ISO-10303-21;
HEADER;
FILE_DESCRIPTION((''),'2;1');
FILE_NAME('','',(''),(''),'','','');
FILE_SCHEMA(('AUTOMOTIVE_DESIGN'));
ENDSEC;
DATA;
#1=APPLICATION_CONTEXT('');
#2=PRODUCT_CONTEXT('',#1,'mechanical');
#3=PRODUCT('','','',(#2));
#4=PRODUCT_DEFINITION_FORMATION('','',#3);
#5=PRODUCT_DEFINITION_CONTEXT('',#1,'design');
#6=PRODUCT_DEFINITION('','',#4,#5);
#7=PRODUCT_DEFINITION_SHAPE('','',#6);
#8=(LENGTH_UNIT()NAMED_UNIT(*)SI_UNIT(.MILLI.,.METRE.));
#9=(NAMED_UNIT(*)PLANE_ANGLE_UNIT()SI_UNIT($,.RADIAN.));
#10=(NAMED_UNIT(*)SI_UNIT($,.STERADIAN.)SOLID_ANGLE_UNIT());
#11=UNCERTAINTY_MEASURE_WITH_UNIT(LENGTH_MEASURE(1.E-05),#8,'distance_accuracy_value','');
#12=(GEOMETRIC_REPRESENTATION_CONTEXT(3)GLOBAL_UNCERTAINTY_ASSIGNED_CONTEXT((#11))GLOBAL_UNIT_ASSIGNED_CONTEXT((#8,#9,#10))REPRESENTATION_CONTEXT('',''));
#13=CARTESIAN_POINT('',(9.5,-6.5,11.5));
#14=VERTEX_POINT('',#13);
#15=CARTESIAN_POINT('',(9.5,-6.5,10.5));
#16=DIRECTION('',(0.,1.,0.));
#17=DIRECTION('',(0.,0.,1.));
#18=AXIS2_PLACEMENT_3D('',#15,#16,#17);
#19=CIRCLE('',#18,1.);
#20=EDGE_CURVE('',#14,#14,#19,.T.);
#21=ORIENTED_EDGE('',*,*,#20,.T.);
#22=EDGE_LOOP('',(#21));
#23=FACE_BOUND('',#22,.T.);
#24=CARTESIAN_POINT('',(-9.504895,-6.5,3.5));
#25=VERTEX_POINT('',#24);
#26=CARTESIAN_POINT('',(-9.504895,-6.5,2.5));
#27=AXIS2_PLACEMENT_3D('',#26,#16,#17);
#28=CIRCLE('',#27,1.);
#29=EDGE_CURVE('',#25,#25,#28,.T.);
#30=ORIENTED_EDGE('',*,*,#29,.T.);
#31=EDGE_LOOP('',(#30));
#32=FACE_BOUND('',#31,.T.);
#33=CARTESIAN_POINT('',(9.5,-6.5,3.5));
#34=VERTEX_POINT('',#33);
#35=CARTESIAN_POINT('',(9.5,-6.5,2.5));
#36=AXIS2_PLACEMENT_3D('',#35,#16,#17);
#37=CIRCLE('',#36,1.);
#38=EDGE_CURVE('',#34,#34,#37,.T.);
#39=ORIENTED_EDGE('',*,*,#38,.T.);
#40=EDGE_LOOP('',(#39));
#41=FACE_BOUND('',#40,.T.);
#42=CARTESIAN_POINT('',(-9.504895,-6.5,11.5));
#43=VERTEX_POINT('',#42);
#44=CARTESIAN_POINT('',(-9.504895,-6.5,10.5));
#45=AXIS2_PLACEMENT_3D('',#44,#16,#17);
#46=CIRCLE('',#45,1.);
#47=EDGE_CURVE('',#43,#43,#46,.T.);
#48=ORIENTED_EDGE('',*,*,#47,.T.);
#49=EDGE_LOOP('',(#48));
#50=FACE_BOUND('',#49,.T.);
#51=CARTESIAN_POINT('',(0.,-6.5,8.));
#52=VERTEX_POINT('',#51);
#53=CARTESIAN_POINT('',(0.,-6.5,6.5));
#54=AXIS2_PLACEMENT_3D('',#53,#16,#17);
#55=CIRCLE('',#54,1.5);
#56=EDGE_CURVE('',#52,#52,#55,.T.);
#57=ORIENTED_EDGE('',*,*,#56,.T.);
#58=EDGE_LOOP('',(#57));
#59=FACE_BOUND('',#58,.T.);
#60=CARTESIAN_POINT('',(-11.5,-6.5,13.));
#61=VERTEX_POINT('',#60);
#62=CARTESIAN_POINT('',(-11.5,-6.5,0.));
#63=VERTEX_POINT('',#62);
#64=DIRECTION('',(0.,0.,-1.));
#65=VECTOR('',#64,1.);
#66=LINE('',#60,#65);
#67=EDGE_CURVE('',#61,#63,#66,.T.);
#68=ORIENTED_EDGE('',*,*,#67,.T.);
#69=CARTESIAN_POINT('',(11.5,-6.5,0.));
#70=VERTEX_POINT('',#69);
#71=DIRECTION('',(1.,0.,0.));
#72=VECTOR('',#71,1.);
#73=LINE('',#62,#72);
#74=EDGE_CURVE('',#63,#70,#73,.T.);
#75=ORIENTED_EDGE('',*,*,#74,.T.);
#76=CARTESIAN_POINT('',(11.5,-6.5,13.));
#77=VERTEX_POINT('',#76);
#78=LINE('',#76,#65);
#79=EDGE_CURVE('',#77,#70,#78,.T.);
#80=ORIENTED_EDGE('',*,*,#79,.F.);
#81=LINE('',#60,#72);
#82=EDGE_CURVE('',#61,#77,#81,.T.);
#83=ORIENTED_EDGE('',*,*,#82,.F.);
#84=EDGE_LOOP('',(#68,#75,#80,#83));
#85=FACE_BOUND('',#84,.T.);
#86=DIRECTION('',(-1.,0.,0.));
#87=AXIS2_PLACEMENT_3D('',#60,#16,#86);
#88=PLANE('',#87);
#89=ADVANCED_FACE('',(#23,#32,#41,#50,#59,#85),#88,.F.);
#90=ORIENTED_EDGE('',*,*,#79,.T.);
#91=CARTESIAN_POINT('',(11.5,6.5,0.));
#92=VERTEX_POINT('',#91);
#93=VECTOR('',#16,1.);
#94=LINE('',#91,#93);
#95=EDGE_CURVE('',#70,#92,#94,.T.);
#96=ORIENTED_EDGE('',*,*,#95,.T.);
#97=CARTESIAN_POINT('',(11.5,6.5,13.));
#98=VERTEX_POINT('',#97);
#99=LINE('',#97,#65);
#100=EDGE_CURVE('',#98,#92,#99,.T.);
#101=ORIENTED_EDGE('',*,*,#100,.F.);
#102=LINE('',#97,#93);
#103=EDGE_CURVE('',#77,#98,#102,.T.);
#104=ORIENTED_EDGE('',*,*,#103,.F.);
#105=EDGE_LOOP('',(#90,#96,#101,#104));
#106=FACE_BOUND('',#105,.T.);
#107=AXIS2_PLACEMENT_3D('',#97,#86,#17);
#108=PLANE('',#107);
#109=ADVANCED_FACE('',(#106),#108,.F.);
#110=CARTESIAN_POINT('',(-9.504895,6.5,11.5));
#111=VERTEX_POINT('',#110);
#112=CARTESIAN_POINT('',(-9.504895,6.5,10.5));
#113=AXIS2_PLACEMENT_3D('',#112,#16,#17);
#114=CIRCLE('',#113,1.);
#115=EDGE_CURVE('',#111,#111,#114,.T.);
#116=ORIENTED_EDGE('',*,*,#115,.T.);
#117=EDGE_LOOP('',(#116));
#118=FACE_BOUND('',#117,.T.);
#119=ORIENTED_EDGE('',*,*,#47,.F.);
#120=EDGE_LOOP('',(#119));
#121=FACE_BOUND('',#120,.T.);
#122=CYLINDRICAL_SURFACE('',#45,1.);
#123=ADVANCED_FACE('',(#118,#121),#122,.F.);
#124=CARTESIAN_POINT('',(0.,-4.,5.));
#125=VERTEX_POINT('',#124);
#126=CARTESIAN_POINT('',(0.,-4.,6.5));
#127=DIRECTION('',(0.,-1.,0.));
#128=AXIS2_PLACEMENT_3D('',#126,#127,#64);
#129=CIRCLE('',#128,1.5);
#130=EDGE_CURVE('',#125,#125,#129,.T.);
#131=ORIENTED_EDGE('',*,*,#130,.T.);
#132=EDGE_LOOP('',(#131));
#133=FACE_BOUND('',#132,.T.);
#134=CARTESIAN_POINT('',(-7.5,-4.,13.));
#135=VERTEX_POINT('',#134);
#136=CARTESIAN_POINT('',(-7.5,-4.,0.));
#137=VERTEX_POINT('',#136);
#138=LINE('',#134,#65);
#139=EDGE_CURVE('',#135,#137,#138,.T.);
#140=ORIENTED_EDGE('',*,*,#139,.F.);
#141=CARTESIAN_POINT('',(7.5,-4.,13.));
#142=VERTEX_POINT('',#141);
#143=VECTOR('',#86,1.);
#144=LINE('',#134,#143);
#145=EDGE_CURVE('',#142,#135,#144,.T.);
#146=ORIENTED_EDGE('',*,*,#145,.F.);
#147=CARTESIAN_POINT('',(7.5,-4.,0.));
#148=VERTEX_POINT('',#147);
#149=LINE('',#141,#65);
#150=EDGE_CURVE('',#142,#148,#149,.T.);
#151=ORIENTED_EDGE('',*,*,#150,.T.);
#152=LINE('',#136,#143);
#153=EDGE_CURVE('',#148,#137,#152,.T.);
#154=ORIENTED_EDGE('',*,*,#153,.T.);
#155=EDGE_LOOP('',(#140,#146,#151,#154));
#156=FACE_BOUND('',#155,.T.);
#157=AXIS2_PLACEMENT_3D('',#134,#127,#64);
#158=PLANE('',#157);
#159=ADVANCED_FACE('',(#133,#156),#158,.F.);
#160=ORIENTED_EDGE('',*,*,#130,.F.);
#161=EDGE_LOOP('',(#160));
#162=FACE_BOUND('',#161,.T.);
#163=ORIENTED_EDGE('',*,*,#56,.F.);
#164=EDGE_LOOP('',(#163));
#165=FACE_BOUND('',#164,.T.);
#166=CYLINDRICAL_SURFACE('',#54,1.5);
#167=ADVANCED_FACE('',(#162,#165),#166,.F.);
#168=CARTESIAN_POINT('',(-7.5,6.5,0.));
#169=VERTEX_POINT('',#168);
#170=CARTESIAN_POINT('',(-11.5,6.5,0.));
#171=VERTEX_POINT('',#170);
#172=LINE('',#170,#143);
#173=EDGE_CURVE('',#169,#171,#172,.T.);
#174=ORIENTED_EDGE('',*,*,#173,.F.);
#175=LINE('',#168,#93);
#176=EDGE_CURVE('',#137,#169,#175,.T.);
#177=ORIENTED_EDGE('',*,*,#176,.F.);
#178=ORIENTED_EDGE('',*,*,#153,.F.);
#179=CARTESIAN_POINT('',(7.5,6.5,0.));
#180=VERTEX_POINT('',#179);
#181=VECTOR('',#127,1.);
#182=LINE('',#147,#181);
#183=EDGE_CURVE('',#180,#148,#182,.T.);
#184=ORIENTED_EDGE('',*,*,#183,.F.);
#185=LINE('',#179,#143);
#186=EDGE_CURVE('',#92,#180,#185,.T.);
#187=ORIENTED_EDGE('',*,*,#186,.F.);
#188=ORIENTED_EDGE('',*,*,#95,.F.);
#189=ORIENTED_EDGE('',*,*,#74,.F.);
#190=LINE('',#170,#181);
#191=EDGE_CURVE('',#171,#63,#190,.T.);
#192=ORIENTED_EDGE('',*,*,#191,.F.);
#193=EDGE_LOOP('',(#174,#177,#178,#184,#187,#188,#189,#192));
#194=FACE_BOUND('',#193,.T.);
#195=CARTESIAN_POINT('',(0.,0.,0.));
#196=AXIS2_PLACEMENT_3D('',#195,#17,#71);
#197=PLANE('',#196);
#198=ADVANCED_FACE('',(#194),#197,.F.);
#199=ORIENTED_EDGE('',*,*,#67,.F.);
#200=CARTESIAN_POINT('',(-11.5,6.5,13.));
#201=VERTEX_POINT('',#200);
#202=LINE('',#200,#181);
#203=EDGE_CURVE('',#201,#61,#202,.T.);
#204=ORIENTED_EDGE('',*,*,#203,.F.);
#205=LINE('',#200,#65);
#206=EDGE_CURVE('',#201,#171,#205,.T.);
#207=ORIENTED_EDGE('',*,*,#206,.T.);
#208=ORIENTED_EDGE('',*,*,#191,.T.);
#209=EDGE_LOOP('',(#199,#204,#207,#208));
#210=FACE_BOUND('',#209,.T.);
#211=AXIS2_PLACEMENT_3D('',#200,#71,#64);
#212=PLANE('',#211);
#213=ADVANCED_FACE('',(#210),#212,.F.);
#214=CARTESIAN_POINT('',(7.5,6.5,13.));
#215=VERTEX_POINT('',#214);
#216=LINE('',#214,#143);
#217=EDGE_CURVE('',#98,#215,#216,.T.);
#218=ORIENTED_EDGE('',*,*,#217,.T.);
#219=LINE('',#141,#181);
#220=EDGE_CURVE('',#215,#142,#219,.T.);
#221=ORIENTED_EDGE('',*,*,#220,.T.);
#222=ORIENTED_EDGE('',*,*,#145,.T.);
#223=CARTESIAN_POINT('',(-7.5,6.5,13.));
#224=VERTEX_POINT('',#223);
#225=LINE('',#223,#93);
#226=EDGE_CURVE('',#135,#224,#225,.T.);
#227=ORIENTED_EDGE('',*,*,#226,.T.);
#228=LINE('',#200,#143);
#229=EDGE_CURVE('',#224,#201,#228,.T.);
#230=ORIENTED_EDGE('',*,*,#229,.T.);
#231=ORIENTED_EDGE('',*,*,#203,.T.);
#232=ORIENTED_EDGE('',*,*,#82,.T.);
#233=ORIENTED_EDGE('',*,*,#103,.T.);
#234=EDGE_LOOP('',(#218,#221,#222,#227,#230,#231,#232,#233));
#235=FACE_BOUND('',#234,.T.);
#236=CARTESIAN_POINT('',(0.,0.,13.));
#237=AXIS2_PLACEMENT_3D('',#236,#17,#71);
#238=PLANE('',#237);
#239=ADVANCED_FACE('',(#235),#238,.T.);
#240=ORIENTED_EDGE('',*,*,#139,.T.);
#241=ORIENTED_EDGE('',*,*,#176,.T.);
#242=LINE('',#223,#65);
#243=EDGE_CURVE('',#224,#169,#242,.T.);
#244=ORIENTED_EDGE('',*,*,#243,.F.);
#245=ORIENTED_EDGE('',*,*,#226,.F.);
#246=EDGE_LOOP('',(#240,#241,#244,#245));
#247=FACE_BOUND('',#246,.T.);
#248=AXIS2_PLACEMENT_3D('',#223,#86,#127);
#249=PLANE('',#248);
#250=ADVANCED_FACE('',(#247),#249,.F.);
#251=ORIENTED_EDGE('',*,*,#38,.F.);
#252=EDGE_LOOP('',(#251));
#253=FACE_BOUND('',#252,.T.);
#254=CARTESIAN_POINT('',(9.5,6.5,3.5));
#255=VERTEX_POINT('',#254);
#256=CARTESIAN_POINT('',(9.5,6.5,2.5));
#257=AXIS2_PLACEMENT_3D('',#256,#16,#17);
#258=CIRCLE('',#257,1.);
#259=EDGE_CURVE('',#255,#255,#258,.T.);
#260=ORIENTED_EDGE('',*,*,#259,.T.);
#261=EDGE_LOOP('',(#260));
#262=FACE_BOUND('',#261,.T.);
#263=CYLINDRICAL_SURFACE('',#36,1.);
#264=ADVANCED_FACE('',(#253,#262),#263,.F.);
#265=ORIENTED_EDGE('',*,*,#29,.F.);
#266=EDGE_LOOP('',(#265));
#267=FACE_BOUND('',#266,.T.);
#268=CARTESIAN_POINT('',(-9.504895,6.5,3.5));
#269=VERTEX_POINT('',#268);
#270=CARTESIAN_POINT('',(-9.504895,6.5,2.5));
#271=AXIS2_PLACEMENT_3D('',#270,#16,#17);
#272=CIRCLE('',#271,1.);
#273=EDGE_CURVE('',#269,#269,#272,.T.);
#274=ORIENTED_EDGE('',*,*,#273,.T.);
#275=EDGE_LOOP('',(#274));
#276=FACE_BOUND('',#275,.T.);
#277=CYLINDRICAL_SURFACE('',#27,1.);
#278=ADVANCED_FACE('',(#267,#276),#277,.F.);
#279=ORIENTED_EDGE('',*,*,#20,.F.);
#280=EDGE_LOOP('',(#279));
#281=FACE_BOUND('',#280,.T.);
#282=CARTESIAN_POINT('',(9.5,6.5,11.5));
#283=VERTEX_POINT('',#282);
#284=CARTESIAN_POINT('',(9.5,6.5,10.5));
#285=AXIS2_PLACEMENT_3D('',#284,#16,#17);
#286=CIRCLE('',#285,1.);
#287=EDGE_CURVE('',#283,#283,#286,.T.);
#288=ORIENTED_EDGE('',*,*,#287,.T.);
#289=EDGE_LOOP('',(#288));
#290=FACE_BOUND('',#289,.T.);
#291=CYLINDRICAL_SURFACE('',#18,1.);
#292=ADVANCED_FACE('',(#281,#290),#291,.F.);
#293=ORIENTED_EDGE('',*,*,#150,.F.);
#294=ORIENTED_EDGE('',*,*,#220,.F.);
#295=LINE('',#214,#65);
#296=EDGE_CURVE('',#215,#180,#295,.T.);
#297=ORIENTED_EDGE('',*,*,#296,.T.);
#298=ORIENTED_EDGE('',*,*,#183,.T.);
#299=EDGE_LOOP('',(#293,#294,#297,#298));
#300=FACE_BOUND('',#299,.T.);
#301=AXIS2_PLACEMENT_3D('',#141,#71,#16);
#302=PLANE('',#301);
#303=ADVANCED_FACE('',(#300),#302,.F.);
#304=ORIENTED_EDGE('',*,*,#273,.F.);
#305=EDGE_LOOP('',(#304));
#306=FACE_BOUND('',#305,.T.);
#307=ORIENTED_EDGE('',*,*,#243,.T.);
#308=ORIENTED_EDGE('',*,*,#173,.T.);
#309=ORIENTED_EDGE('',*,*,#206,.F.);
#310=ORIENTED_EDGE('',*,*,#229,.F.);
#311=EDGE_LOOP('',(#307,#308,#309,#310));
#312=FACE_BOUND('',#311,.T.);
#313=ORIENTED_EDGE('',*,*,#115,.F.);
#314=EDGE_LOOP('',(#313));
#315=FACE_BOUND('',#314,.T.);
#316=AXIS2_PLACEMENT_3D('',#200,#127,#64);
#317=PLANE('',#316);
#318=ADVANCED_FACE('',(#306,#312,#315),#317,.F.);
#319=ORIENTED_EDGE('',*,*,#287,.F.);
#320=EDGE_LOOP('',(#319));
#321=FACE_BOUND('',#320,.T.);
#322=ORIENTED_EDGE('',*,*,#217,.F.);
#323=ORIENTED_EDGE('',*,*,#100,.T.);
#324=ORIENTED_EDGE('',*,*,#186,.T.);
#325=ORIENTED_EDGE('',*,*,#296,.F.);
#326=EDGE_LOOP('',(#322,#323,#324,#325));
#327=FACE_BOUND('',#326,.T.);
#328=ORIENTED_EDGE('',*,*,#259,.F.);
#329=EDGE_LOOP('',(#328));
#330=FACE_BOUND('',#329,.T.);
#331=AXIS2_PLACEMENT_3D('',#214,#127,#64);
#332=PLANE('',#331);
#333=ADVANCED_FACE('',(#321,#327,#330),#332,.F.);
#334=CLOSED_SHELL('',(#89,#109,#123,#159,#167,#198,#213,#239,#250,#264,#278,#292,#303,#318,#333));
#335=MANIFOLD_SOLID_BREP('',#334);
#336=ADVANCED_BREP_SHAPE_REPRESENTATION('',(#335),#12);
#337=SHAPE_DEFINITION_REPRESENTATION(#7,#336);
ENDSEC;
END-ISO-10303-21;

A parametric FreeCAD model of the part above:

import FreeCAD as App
import Part
import Sketcher

V = App.Vector
Q = App.Units.Quantity

doc = App.newDocument("Part")
body = doc.addObject("PartDesign::Body", "Body")

# Sketch on XY plane
sketch1 = doc.addObject("Sketcher::SketchObject", "Sketch")
body.addObject(sketch1)
sketch1.AttachmentSupport = (doc.XY_Plane, [""])
sketch1.MapMode = "FlatFace"
sketch1.addGeometry([
    Part.LineSegment(V(-7.5, -4, 0), V(-7.5, 6.5, 0)),  # 0
    Part.LineSegment(V(-7.5, 6.5, 0), V(-11.5, 6.5, 0)),  # 1
    Part.LineSegment(V(-11.5, 6.5, 0), V(-11.5, -6.5, 0)),  # 2
    Part.LineSegment(V(-11.5, -6.5, 0), V(11.5, -6.5, 0)),  # 3
    Part.LineSegment(V(11.5, -6.5, 0), V(11.5, 6.5, 0)),  # 4
    Part.LineSegment(V(11.5, 6.5, 0), V(7.5, 6.5, 0)),  # 5
    Part.LineSegment(V(7.5, 6.5, 0), V(7.5, -4, 0)),  # 6
    Part.LineSegment(V(7.5, -4, 0), V(-7.5, -4, 0)),  # 7
], False)
sketch1.addConstraint([
    Sketcher.Constraint("Coincident", 0, 2, 1, 1),
    Sketcher.Constraint("Coincident", 1, 2, 2, 1),
    Sketcher.Constraint("Coincident", 2, 2, 3, 1),
    Sketcher.Constraint("Coincident", 3, 2, 4, 1),
    Sketcher.Constraint("Coincident", 4, 2, 5, 1),
    Sketcher.Constraint("Coincident", 5, 2, 6, 1),
    Sketcher.Constraint("Coincident", 6, 2, 7, 1),
    Sketcher.Constraint("Coincident", 7, 2, 0, 1),
    Sketcher.Constraint("Vertical", 0),
    Sketcher.Constraint("Horizontal", 1),
    Sketcher.Constraint("Vertical", 2),
    Sketcher.Constraint("Horizontal", 3),
    Sketcher.Constraint("Vertical", 4),
    Sketcher.Constraint("Horizontal", 5),
    Sketcher.Constraint("Vertical", 6),
    Sketcher.Constraint("Horizontal", 7),
    Sketcher.Constraint("Symmetric", 1, 2, 3, 2, -1, 1),
    Sketcher.Constraint("Symmetric", 0, 2, 5, 2, -2),
    Sketcher.Constraint("DistanceX", 1, 2, 1, 1, Q("4 mm")),
    Sketcher.Constraint("DistanceX", 3, 1, 3, 2, Q("23 mm")),
    Sketcher.Constraint("DistanceY", 2, 2, 2, 1, Q("13 mm")),
    Sketcher.Constraint("DistanceY", 0, 1, 0, 2, Q("10.5 mm")),
])
pad1 = doc.addObject("PartDesign::Pad", "Pad")
body.addObject(pad1)
pad1.Profile = sketch1
pad1.Length = 13

# Sketch on XZ plane
sketch2 = doc.addObject("Sketcher::SketchObject", "Sketch001")
body.addObject(sketch2)
sketch2.AttachmentSupport = (doc.XZ_Plane, [""])
sketch2.MapMode = "FlatFace"
sketch2.AttachmentOffset = App.Placement(V(0, 0, -6.5), App.Rotation())
sketch2.addGeometry([
    Part.Circle(V(-9.5, 2.5, 0), V(0, 0, 1), 1),  # 0
    Part.Circle(V(-9.5, 10.5, 0), V(0, 0, 1), 1),  # 1
    Part.Circle(V(9.5, 2.5, 0), V(0, 0, 1), 1),  # 2
    Part.Circle(V(9.5, 10.5, 0), V(0, 0, 1), 1),  # 3
    Part.Circle(V(0, 6.5, 0), V(0, 0, 1), 1.5),  # 4
], False)
sketch2.addConstraint([
    Sketcher.Constraint("Equal", 0, 1),
    Sketcher.Constraint("Equal", 1, 2),
    Sketcher.Constraint("Equal", 2, 3),
    Sketcher.Constraint("PointOnObject", 4, 3, -2),
    Sketcher.Constraint("Horizontal", 0, 3, 2, 3),
    Sketcher.Constraint("Horizontal", 1, 3, 3, 3),
    Sketcher.Constraint("Vertical", 0, 3, 1, 3),
    Sketcher.Constraint("Vertical", 2, 3, 3, 3),
    Sketcher.Constraint("Diameter", 0, Q("2 mm")),
    Sketcher.Constraint("Diameter", 4, Q("3 mm")),
    Sketcher.Constraint("DistanceY", 0, 3, 1, 3, Q("8 mm")),
    Sketcher.Constraint("DistanceY", 2, 3, 4, 3, Q("4 mm")),
    Sketcher.Constraint("DistanceY", -1, 1, 0, 3, Q("2.5 mm")),
    Sketcher.Constraint("DistanceX", -1, 1, 2, 3, Q("9.5 mm")),
    Sketcher.Constraint("DistanceX", 0, 3, -1, 1, Q("9.504895 mm")),
])
pocket1 = doc.addObject("PartDesign::Pocket", "Pocket")
body.addObject(pocket1)
pocket1.Profile = sketch2
pocket1.Type = "ThroughAll"
pocket1.Reversed = True

doc.recompute()
